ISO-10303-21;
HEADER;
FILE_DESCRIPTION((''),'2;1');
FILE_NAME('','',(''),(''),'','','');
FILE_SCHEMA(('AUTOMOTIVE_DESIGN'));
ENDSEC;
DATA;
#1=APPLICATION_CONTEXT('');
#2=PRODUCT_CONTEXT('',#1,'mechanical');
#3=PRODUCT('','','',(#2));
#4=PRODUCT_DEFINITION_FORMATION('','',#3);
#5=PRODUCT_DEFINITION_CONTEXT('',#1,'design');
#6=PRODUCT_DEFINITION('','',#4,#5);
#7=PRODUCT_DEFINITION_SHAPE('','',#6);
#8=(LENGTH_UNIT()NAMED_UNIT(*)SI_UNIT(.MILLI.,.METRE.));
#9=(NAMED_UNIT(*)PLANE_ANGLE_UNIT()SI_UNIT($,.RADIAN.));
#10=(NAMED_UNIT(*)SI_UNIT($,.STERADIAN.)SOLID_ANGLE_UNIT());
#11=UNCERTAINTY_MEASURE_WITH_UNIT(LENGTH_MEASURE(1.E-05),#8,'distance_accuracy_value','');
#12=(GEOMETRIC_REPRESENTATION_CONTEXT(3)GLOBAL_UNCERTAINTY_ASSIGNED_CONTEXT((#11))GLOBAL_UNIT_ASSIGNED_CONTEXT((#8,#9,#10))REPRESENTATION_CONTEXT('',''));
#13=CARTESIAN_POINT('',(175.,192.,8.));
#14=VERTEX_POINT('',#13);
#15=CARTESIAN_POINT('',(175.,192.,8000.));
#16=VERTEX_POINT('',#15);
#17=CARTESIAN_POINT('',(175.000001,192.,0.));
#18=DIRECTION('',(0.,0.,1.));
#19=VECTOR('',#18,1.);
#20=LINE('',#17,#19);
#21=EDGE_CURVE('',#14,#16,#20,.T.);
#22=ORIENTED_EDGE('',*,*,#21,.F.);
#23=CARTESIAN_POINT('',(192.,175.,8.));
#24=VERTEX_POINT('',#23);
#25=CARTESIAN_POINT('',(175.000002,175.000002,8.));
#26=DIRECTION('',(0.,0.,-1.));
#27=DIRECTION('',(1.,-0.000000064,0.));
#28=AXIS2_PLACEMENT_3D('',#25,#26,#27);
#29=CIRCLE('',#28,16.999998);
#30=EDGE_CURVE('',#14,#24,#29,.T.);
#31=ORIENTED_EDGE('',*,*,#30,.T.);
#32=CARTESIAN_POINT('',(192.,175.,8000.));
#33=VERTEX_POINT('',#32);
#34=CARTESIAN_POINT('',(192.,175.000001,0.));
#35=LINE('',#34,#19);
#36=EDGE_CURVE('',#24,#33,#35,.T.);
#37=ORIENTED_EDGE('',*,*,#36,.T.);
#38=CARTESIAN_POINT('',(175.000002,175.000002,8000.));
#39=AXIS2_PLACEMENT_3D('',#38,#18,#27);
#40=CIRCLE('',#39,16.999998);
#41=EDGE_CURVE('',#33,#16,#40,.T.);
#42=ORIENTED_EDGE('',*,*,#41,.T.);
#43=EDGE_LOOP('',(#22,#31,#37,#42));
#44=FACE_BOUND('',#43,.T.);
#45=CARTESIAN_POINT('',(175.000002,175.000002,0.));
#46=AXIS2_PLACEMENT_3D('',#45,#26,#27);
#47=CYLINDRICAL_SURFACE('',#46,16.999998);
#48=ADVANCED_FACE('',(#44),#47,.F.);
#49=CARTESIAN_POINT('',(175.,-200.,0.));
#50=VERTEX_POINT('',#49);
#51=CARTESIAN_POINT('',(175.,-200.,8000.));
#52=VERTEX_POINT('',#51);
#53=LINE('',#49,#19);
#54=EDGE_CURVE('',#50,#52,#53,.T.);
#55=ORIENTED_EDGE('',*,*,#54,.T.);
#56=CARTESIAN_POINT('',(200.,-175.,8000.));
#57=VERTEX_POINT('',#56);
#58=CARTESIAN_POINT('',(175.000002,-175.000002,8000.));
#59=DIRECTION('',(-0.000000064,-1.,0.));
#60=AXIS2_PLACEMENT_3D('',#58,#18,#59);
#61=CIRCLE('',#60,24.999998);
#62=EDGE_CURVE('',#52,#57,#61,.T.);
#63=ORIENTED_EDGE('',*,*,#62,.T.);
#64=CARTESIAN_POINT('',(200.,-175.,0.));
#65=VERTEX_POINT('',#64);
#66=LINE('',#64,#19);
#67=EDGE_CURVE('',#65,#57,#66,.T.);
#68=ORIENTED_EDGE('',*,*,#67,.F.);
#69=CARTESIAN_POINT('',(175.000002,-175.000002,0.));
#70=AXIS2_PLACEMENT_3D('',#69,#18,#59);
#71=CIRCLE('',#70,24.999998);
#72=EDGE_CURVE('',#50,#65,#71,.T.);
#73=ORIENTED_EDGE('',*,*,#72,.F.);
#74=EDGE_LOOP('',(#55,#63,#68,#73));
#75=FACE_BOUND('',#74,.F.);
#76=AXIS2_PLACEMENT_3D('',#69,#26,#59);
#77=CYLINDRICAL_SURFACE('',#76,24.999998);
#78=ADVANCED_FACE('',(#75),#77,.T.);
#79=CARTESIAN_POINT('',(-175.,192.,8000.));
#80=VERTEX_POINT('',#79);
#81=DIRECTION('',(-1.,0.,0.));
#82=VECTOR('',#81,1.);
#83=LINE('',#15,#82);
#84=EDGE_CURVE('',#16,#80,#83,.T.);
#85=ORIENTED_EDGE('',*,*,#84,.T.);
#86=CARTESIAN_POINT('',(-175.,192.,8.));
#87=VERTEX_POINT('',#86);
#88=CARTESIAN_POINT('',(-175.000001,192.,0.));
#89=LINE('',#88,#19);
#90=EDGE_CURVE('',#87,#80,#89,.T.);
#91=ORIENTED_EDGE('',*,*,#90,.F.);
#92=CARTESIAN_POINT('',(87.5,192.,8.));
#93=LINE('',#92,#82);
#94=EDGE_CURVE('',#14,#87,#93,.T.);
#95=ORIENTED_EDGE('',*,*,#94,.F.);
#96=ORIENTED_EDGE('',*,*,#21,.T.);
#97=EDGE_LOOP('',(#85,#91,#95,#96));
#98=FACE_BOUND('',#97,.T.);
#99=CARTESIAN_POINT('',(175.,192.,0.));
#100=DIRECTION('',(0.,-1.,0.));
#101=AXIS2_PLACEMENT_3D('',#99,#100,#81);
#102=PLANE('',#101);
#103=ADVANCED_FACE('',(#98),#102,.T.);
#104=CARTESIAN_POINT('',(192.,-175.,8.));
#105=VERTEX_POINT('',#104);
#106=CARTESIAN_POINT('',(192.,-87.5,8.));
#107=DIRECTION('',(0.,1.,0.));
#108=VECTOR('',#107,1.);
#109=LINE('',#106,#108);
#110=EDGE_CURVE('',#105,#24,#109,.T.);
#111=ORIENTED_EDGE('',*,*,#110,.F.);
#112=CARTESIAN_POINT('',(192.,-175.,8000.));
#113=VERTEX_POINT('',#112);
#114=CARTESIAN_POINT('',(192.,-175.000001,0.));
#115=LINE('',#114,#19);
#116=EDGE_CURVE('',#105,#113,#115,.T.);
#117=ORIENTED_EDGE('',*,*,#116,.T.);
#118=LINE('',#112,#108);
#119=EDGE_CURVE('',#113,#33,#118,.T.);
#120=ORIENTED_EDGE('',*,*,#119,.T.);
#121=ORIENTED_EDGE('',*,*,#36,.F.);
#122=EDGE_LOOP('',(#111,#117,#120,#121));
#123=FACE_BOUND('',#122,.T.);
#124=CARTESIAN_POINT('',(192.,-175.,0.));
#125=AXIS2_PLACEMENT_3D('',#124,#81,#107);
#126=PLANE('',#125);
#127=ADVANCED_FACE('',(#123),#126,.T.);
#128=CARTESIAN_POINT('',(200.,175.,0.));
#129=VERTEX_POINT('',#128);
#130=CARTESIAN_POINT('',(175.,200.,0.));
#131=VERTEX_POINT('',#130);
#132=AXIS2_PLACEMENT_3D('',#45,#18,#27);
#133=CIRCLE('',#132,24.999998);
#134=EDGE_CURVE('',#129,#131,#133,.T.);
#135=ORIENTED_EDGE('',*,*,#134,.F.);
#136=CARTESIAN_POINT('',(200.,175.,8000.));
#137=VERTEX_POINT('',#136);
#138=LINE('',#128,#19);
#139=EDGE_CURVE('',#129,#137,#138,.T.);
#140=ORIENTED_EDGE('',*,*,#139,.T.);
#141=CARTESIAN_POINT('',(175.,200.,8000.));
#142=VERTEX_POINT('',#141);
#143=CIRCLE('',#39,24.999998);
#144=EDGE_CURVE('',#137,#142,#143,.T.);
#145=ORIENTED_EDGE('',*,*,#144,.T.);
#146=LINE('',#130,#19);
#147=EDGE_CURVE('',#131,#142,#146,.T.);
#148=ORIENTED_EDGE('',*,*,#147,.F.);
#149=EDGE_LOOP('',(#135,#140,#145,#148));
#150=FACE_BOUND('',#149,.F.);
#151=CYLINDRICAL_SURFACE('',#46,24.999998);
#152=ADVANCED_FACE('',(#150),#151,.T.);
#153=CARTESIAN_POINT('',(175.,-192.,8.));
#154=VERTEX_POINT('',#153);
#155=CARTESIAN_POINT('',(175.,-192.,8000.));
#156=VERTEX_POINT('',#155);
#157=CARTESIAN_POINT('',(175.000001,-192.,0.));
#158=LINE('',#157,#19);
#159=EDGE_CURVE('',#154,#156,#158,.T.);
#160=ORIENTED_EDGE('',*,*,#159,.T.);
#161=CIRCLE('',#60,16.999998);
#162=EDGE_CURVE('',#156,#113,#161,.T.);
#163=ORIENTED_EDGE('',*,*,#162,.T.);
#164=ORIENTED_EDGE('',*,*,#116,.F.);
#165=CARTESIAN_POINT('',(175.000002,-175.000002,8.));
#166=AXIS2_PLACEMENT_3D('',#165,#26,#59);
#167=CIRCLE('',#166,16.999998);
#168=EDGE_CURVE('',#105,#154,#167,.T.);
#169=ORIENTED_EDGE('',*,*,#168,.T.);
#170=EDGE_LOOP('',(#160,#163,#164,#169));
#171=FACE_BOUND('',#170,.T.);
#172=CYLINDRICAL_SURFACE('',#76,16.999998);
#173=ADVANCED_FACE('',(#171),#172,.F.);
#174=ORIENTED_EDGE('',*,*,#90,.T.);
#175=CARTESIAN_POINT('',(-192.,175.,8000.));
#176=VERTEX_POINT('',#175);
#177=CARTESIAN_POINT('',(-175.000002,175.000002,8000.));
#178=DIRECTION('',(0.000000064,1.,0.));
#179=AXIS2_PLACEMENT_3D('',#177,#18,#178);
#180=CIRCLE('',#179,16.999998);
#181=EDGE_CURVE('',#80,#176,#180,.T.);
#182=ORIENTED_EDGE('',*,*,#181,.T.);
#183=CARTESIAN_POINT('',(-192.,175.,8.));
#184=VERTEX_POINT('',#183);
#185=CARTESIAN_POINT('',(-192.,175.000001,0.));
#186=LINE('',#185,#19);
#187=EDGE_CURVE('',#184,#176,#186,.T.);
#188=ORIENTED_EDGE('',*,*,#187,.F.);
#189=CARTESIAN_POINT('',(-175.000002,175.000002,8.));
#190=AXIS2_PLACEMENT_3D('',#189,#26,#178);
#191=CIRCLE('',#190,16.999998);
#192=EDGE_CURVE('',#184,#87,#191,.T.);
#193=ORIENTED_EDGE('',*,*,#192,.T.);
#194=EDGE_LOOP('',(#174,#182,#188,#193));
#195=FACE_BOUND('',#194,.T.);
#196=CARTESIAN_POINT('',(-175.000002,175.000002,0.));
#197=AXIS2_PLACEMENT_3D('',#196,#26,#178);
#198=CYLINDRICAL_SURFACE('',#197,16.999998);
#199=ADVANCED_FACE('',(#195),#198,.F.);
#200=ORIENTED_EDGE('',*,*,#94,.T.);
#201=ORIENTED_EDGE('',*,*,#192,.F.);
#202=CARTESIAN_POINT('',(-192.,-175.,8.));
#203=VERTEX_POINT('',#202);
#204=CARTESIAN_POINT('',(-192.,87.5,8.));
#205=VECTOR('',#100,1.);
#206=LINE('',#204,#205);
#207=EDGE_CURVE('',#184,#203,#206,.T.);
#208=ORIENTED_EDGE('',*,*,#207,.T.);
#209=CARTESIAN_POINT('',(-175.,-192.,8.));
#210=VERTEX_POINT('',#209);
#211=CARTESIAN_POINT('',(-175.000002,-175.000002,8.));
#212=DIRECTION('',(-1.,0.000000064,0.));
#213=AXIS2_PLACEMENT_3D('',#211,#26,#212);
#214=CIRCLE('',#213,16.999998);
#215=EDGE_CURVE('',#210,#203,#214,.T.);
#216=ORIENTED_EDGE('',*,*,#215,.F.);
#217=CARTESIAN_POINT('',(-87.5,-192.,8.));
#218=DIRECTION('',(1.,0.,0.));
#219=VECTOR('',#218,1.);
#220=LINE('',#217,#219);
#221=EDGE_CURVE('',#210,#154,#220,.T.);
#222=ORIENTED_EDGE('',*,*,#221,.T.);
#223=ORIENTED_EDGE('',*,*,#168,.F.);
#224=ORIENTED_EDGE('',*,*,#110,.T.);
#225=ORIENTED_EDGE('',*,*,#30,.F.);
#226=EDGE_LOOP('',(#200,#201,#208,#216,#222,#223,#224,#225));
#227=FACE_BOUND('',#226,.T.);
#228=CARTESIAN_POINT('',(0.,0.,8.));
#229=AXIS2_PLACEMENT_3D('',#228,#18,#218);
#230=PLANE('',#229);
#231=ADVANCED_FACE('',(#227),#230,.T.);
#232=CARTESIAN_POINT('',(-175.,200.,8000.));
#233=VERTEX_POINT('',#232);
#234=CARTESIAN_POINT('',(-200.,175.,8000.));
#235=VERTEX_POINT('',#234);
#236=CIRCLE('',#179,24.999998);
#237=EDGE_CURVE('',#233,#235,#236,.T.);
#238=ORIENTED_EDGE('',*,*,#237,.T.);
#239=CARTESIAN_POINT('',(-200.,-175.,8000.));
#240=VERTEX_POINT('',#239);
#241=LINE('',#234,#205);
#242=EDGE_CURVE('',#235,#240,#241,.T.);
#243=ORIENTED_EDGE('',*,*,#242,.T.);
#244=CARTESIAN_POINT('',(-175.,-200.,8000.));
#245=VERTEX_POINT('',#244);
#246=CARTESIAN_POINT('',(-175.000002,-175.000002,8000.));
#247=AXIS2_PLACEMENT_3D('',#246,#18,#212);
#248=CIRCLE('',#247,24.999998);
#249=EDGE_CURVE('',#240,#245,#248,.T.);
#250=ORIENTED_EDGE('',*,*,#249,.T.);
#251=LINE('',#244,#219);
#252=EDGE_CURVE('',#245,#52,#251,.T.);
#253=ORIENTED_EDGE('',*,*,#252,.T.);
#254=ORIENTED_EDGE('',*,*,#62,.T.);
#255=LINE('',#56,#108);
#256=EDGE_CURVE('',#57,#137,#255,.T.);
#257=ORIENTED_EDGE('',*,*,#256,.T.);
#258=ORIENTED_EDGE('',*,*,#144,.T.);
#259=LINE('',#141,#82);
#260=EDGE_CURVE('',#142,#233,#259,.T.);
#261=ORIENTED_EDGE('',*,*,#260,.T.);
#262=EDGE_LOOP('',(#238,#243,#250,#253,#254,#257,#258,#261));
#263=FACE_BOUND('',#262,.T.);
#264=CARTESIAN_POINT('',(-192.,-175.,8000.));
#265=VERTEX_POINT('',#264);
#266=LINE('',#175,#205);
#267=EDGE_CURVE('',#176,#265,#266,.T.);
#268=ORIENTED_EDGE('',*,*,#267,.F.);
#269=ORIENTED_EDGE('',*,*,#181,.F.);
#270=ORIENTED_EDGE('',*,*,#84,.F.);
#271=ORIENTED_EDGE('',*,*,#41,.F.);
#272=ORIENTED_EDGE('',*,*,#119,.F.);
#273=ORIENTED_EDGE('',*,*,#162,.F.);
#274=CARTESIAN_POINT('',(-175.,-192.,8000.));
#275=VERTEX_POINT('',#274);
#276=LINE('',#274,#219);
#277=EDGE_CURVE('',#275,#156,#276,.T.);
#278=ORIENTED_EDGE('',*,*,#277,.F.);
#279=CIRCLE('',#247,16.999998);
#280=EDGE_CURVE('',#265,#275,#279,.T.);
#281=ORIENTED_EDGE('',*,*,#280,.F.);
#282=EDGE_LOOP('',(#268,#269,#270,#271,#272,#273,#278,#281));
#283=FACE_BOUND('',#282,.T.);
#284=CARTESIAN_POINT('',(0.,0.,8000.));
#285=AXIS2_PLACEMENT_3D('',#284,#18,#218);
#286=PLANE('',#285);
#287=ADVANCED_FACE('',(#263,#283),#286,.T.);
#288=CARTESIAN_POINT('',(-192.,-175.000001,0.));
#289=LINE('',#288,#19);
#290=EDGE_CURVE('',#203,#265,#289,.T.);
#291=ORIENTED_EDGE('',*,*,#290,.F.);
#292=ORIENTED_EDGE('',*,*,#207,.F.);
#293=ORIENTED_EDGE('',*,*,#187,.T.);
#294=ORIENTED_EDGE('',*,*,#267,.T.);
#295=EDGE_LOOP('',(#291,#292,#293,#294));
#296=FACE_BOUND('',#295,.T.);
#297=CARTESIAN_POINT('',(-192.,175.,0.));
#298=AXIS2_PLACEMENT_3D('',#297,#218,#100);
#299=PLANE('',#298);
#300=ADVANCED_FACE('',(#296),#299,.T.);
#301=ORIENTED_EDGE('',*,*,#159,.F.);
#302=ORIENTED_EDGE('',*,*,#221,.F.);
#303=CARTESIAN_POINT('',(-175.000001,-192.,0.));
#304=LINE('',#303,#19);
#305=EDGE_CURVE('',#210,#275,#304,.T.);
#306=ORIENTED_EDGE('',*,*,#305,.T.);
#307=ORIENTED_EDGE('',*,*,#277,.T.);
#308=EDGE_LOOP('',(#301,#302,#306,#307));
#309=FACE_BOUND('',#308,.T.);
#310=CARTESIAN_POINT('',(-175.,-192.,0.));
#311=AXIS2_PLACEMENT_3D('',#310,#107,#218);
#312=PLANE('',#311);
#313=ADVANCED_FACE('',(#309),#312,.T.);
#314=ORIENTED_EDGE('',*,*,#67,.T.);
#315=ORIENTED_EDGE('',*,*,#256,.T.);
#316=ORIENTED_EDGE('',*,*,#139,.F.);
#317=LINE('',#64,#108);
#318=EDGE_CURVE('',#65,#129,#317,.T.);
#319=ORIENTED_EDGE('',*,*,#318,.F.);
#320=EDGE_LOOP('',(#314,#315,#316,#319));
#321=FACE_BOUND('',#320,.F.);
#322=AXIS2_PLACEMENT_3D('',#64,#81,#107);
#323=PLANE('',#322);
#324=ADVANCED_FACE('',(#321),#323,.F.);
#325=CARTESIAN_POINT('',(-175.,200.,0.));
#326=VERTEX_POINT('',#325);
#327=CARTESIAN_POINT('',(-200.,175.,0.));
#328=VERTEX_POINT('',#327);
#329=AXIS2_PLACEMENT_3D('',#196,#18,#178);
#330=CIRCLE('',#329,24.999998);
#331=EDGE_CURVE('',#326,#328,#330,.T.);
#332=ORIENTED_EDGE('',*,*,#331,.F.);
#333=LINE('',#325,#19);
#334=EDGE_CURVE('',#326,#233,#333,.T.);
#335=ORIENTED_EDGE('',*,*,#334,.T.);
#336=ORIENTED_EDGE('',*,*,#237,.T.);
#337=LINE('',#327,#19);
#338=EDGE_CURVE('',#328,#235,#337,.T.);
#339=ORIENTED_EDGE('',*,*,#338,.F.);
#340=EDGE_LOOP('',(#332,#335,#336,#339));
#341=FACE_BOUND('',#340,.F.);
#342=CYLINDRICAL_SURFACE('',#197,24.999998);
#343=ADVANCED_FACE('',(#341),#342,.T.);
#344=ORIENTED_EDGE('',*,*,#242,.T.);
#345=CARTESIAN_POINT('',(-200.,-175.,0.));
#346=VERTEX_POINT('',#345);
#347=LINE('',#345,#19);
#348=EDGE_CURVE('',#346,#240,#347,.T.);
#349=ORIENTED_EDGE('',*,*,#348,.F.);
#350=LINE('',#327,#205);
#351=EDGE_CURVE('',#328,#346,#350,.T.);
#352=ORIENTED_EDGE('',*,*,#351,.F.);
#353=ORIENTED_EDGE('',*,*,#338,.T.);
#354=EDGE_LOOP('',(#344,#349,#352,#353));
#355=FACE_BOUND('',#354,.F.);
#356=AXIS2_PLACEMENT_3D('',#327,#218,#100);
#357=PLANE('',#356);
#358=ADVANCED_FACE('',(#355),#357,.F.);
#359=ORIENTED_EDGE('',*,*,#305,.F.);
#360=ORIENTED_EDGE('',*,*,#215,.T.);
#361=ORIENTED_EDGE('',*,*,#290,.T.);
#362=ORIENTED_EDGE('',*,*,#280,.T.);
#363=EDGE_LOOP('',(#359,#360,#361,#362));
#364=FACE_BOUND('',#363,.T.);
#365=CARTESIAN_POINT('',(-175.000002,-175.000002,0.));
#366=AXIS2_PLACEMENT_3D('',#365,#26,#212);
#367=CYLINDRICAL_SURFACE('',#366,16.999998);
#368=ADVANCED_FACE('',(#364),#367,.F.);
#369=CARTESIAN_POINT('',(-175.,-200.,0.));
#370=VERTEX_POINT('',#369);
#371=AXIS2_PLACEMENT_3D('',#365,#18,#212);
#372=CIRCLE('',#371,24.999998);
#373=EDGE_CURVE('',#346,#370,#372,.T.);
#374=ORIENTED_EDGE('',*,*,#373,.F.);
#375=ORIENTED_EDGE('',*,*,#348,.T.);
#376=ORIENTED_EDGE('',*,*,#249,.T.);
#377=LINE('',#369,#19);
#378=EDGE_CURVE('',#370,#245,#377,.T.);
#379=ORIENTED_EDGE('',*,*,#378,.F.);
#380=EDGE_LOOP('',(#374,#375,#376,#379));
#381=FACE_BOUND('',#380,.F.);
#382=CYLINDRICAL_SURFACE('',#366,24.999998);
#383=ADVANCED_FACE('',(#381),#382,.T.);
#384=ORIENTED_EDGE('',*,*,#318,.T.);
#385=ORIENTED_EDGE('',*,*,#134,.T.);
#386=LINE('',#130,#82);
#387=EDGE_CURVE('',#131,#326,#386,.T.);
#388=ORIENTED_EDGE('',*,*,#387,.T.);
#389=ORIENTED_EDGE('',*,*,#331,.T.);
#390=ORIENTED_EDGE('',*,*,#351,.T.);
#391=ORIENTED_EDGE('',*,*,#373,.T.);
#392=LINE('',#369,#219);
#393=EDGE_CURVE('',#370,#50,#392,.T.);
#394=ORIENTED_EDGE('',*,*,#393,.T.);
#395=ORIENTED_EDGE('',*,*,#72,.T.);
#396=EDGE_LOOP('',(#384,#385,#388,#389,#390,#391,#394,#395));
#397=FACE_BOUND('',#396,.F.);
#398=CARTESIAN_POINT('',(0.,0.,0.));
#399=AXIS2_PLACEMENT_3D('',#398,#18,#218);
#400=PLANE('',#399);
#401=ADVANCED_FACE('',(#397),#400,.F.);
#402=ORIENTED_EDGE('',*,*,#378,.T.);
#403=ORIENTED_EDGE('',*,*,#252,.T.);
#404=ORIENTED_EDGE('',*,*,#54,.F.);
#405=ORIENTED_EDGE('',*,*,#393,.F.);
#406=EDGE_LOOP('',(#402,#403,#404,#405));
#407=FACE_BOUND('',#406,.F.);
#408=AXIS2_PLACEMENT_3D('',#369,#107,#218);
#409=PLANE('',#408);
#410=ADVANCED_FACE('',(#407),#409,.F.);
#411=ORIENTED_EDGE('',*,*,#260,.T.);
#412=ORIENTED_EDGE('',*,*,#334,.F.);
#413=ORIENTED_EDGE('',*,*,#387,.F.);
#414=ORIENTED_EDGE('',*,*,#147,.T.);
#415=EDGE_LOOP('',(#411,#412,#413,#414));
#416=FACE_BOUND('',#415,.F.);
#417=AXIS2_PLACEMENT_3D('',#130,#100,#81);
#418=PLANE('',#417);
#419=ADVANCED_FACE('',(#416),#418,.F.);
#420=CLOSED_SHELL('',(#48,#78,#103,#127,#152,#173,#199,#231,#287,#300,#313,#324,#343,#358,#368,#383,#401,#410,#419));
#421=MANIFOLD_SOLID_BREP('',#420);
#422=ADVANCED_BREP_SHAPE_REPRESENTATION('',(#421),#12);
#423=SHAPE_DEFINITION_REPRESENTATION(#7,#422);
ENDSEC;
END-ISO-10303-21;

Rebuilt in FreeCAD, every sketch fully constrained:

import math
import FreeCAD as App
import Part
import Sketcher

V = App.Vector
Q = App.Units.Quantity


def faces_at(feature, points):
    """Names of the faces that lie closest to the given points."""
    faces = feature.Shape.Faces
    near = lambda p: min(range(len(faces)), key=lambda i: faces[i].distToShape(Part.Vertex(*p))[0])
    return sorted({f"Face{near(p) + 1}" for p in points})

doc = App.newDocument("Part")
body = doc.addObject("PartDesign::Body", "Body")

# Sketch on XY plane
sketch1 = doc.addObject("Sketcher::SketchObject", "Sketch")
body.addObject(sketch1)
sketch1.AttachmentSupport = (doc.XY_Plane, [""])
sketch1.MapMode = "FlatFace"
sketch1.addGeometry(Part.LineSegment(V(-175, -200, 0), V(175, -200, 0)), False)
sketch1.addGeometry(Part.ArcOfCircle(Part.Circle(V(175, -175, 0), V(0, 0, 1), 25), math.radians(-90), math.radians(0)), False)
sketch1.addGeometry(Part.LineSegment(V(200, -175, 0), V(200, 175, 0)), False)
sketch1.addGeometry(Part.ArcOfCircle(Part.Circle(V(175, 175, 0), V(0, 0, 1), 25), math.radians(0), math.radians(90)), False)
sketch1.addGeometry(Part.LineSegment(V(175, 200, 0), V(-175, 200, 0)), False)
sketch1.addGeometry(Part.ArcOfCircle(Part.Circle(V(-175, 175, 0), V(0, 0, 1), 25), math.radians(90), math.radians(180)), False)
sketch1.addGeometry(Part.LineSegment(V(-200, 175, 0), V(-200, -175, 0)), False)
sketch1.addGeometry(Part.ArcOfCircle(Part.Circle(V(-175, -175, 0), V(0, 0, 1), 25), math.radians(180), math.radians(270)), False)
sketch1.addConstraint(Sketcher.Constraint("Tangent", 0, 2, 1, 1))
sketch1.addConstraint(Sketcher.Constraint("Tangent", 1, 2, 2, 1))
sketch1.addConstraint(Sketcher.Constraint("Tangent", 2, 2, 3, 1))
sketch1.addConstraint(Sketcher.Constraint("Tangent", 3, 2, 4, 1))
sketch1.addConstraint(Sketcher.Constraint("Tangent", 4, 2, 5, 1))
sketch1.addConstraint(Sketcher.Constraint("Tangent", 5, 2, 6, 1))
sketch1.addConstraint(Sketcher.Constraint("Tangent", 6, 2, 7, 1))
sketch1.addConstraint(Sketcher.Constraint("Tangent", 7, 2, 0, 1))
sketch1.addConstraint(Sketcher.Constraint("Horizontal", 0))
sketch1.addConstraint(Sketcher.Constraint("Vertical", 2))
sketch1.addConstraint(Sketcher.Constraint("Horizontal", 4))
sketch1.addConstraint(Sketcher.Constraint("Vertical", 6))
sketch1.addConstraint(Sketcher.Constraint("Equal", 1, 3))
sketch1.addConstraint(Sketcher.Constraint("Equal", 3, 5))
sketch1.addConstraint(Sketcher.Constraint("Equal", 5, 7))
sketch1.addConstraint(Sketcher.Constraint("Symmetric", 1, 3, 5, 3, -1, 1))
sketch1.addConstraint(Sketcher.Constraint("Equal", 4, 2))
sketch1.addConstraint(Sketcher.Constraint("Radius", 1, Q("24.999998 mm")))
sketch1.addConstraint(Sketcher.Constraint("DistanceX", 0, 1, 0, 2, Q("350 mm")))
pad1 = doc.addObject("PartDesign::Pad", "Pad")
body.addObject(pad1)
pad1.Profile = sketch1
pad1.Length = 8000
doc.recompute()

thickness = doc.addObject("PartDesign::Thickness", "Thickness")
body.addObject(thickness)
thickness.Base = (pad1, faces_at(pad1, [(0, 0, 8000)]))
thickness.Value = 8
thickness.Reversed = True
thickness.Join = "Arc"

doc.recompute()
